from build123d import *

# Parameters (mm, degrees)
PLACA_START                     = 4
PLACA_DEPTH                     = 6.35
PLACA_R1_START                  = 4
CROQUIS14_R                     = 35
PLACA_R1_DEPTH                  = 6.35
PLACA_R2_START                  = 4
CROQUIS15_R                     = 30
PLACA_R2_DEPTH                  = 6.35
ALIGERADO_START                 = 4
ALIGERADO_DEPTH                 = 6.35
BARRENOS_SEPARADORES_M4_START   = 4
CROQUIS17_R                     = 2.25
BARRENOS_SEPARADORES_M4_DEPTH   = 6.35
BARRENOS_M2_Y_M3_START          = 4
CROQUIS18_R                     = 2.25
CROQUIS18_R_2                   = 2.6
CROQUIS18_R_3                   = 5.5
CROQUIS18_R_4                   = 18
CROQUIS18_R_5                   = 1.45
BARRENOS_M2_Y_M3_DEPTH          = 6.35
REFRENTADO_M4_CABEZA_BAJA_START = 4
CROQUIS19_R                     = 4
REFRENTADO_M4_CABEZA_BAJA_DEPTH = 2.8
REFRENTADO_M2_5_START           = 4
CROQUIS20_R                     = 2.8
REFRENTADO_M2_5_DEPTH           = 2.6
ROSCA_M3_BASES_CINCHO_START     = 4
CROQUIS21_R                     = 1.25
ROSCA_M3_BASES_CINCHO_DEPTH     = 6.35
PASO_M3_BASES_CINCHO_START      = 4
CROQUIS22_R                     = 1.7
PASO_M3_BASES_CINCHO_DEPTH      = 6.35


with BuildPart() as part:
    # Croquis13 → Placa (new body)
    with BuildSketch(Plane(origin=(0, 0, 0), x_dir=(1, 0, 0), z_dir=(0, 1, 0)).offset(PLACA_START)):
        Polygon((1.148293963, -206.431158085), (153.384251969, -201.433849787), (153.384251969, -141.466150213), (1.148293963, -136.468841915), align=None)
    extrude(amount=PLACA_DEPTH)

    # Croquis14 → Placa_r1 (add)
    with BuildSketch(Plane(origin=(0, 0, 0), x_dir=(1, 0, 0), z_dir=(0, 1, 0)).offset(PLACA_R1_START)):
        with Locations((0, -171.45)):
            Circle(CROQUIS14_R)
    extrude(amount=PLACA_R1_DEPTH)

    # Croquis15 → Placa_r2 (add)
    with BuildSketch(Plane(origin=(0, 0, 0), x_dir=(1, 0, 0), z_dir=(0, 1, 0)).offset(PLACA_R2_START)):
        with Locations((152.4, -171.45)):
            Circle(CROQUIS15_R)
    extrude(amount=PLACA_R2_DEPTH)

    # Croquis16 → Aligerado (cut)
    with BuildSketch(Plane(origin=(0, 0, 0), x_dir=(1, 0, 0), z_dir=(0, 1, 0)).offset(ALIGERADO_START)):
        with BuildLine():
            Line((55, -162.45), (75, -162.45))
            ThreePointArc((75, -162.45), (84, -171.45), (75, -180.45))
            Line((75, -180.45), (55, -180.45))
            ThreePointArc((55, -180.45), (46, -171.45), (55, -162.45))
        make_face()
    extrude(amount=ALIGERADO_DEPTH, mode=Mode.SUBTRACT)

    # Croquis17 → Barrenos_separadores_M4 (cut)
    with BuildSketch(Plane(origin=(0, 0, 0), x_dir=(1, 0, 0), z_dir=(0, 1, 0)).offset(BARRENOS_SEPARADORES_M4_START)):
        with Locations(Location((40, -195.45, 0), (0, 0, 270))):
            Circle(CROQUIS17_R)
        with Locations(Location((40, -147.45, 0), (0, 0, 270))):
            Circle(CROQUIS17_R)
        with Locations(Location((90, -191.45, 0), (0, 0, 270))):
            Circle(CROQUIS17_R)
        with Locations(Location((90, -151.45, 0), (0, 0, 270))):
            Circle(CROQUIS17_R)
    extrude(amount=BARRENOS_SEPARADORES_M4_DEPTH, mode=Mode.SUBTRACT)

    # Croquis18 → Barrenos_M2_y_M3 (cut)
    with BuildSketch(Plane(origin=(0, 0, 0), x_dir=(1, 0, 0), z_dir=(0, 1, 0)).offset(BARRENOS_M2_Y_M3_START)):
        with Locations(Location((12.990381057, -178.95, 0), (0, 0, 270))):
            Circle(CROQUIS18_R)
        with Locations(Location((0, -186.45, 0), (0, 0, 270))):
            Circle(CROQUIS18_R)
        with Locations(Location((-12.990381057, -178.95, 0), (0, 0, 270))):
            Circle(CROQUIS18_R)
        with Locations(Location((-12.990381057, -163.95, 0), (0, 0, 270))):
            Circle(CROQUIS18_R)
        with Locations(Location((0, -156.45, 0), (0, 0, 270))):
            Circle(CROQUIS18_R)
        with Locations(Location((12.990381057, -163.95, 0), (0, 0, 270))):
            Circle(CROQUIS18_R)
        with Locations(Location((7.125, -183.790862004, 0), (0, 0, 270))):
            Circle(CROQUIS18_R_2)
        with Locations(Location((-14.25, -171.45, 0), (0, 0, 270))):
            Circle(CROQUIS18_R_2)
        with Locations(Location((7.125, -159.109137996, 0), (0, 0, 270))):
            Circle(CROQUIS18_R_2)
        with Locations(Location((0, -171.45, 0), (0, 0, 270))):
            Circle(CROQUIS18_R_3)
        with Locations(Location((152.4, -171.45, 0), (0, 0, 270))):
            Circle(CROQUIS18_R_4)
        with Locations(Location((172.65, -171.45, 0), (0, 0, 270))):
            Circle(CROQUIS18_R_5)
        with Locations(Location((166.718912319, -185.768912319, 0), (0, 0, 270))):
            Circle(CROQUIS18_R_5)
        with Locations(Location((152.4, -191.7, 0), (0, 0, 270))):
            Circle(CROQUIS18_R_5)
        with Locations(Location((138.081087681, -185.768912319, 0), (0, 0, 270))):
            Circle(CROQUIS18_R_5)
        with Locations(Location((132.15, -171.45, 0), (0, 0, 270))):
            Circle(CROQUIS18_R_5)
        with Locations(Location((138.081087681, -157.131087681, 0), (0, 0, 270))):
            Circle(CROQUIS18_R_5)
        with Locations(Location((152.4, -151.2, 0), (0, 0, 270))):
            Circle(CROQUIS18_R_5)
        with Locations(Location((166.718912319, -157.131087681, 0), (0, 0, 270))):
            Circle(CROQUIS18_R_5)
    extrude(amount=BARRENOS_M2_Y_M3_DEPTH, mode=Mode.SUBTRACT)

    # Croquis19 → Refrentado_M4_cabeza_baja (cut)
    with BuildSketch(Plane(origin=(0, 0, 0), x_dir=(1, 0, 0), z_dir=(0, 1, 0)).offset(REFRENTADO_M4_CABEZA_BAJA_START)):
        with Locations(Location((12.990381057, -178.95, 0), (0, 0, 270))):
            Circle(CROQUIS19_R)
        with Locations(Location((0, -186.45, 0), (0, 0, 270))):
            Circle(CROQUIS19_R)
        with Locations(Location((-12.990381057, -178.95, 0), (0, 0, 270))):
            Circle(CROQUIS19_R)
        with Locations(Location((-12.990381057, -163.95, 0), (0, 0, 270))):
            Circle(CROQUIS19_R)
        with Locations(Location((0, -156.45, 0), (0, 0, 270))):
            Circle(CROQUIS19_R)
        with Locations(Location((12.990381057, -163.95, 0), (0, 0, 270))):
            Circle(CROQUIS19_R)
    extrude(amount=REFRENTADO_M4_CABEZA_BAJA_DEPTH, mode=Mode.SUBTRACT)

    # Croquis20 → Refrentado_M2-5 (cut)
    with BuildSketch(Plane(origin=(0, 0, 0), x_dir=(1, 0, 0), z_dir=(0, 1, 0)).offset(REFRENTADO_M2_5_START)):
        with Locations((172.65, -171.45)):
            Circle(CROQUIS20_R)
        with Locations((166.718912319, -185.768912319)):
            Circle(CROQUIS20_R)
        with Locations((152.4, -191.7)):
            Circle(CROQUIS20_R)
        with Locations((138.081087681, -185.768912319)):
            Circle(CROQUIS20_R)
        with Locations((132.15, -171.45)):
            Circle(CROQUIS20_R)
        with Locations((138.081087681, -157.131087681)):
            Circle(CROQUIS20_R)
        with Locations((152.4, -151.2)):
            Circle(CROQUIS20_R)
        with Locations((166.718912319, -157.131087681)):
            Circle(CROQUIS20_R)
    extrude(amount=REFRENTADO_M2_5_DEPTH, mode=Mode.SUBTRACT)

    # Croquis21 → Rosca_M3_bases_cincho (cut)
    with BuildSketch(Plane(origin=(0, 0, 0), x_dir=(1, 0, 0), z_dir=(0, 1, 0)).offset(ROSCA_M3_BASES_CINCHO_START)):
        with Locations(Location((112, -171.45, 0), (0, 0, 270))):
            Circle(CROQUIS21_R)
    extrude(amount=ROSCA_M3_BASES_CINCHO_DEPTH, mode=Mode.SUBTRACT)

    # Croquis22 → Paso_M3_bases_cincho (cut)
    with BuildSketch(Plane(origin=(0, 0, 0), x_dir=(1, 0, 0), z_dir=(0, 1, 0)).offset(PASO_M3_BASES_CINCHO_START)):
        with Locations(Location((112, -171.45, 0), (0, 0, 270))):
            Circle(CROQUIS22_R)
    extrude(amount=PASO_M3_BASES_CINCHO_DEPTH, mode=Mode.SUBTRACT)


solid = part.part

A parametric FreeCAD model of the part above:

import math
import FreeCAD as App
import Part
import Sketcher
from FreeCAD import Vector

doc = App.newDocument("Part")
body = doc.addObject("PartDesign::Body", "Body")

sketch1 = body.newObject("Sketcher::SketchObject", "Sketch")
sketch1.AttachmentSupport = (doc.getObject("XZ_Plane"), [""])
sketch1.MapMode = "FlatFace"
sketch1.AttachmentOffset = App.Placement(Vector(0, 0, -4), App.Rotation())
sketch1.addGeometry([
    Part.LineSegment(Vector(1.148294, 206.431158, 0), Vector(153.384252, 201.43385, 0)),
    Part.LineSegment(Vector(153.384252, 201.43385, 0), Vector(153.384252, 141.46615, 0)),
    Part.LineSegment(Vector(153.384252, 141.46615, 0), Vector(1.148294, 136.468842, 0)),
    Part.LineSegment(Vector(1.148294, 136.468842, 0), Vector(1.148294, 206.431158, 0)),
], False)
sketch1.addConstraint([
    Sketcher.Constraint("Coincident", 0, 2, 1, 1),
    Sketcher.Constraint("Coincident", 1, 2, 2, 1),
    Sketcher.Constraint("Coincident", 2, 2, 3, 1),
    Sketcher.Constraint("Coincident", 3, 2, 0, 1),
    Sketcher.Constraint("Vertical", 1),
    Sketcher.Constraint("Vertical", 3),
    Sketcher.Constraint("Equal", 0, 2),
    Sketcher.Constraint("DistanceY", 1, 2, 1, 1, 59.9677),
    Sketcher.Constraint("DistanceY", 3, 1, 3, 2, 69.962316),
    Sketcher.Constraint("DistanceX", -1, 1, 0, 2, 153.384252),
    Sketcher.Constraint("DistanceY", -1, 1, 0, 2, 201.43385),
    Sketcher.Constraint("DistanceX", 2, 2, 1, 2, 152.235958),
])
pad1 = body.newObject("PartDesign::Pad", "Pad")
pad1.Profile = sketch1
pad1.Length = 6.35
pad1.Reversed = True

sketch2 = body.newObject("Sketcher::SketchObject", "Sketch001")
sketch2.AttachmentSupport = (doc.getObject("XZ_Plane"), [""])
sketch2.MapMode = "FlatFace"
sketch2.AttachmentOffset = App.Placement(Vector(0, 0, -4), App.Rotation())
sketch2.addGeometry(Part.Circle(Vector(0, 171.45, 0), Vector(0, 0, 1), 35), False)
sketch2.addConstraint([
    Sketcher.Constraint("PointOnObject", 0, 3, -2),
    Sketcher.Constraint("Diameter", 0, 70.0),
    Sketcher.Constraint("DistanceY", -1, 1, 0, 3, 171.45),
])
pad2 = body.newObject("PartDesign::Pad", "Pad001")
pad2.Profile = sketch2
pad2.Length = 6.35
pad2.Reversed = True

sketch3 = body.newObject("Sketcher::SketchObject", "Sketch002")
sketch3.AttachmentSupport = (doc.getObject("XZ_Plane"), [""])
sketch3.MapMode = "FlatFace"
sketch3.AttachmentOffset = App.Placement(Vector(0, 0, -4), App.Rotation())
sketch3.addGeometry(Part.Circle(Vector(152.4, 171.45, 0), Vector(0, 0, 1), 30), False)
sketch3.addConstraint([
    Sketcher.Constraint("Diameter", 0, 60.0),
    Sketcher.Constraint("DistanceX", -1, 1, 0, 3, 152.4),
    Sketcher.Constraint("DistanceY", -1, 1, 0, 3, 171.45),
])
pad3 = body.newObject("PartDesign::Pad", "Pad002")
pad3.Profile = sketch3
pad3.Length = 6.35
pad3.Reversed = True

sketch4 = body.newObject("Sketcher::SketchObject", "Sketch003")
sketch4.AttachmentSupport = (doc.getObject("XZ_Plane"), [""])
sketch4.MapMode = "FlatFace"
sketch4.AttachmentOffset = App.Placement(Vector(0, 0, -4), App.Rotation())
sketch4.addGeometry([
    Part.LineSegment(Vector(75, 162.45, 0), Vector(55, 162.45, 0)),
    Part.ArcOfCircle(Part.Circle(Vector(55, 171.45, 0), Vector(0, 0, 1), 9), math.radians(90), math.radians(270)),
    Part.LineSegment(Vector(55, 180.45, 0), Vector(75, 180.45, 0)),
    Part.ArcOfCircle(Part.Circle(Vector(75, 171.45, 0), Vector(0, 0, 1), 9), math.radians(-90), math.radians(90)),
], False)
sketch4.addConstraint([
    Sketcher.Constraint("Tangent", 0, 2, 1, 2),
    Sketcher.Constraint("Tangent", 1, 1, 2, 1),
    Sketcher.Constraint("Tangent", 2, 2, 3, 2),
    Sketcher.Constraint("Tangent", 3, 1, 0, 1),
    Sketcher.Constraint("Horizontal", 0),
    Sketcher.Constraint("Horizontal", 2),
    Sketcher.Constraint("Radius", 1, 9.0),
    Sketcher.Constraint("DistanceX", 0, 2, 0, 1, 20.0),
    Sketcher.Constraint("DistanceX", -1, 1, 1, 3, 55.0),
    Sketcher.Constraint("DistanceY", -1, 1, 1, 3, 171.45),
])
pocket1 = body.newObject("PartDesign::Pocket", "Pocket")
pocket1.Profile = sketch4
pocket1.Length = 6.35

sketch5 = body.newObject("Sketcher::SketchObject", "Sketch004")
sketch5.AttachmentSupport = (doc.getObject("XZ_Plane"), [""])
sketch5.MapMode = "FlatFace"
sketch5.AttachmentOffset = App.Placement(Vector(0, 0, -4), App.Rotation())
sketch5.addGeometry([
    Part.Circle(Vector(40, 195.45, 0), Vector(0, 0, 1), 2.25),
    Part.Circle(Vector(40, 147.45, 0), Vector(0, 0, 1), 2.25),
    Part.Circle(Vector(90, 191.45, 0), Vector(0, 0, 1), 2.25),
    Part.Circle(Vector(90, 151.45, 0), Vector(0, 0, 1), 2.25),
], False)
sketch5.addConstraint([
    Sketcher.Constraint("Equal", 0, 1),
    Sketcher.Constraint("Equal", 1, 2),
    Sketcher.Constraint("Equal", 2, 3),
    Sketcher.Constraint("Vertical", 0, 3, 1, 3),
    Sketcher.Constraint("Vertical", 2, 3, 3, 3),
    Sketcher.Constraint("Diameter", 0, 4.5),
    Sketcher.Constraint("DistanceX", -1, 1, 0, 3, 40.0),
    Sketcher.Constraint("DistanceX", -1, 1, 2, 3, 90.0),
    Sketcher.Constraint("DistanceY", 1, 3, 0, 3, 48.0),
    Sketcher.Constraint("DistanceY", 2, 3, 0, 3, 4.0),
    Sketcher.Constraint("DistanceY", 3, 3, 2, 3, 40.0),
    Sketcher.Constraint("DistanceY", -1, 1, 0, 3, 195.45),
])
pocket2 = body.newObject("PartDesign::Pocket", "Pocket001")
pocket2.Profile = sketch5
pocket2.Length = 6.35

sketch6 = body.newObject("Sketcher::SketchObject", "Sketch005")
sketch6.AttachmentSupport = (doc.getObject("XZ_Plane"), [""])
sketch6.MapMode = "FlatFace"
sketch6.AttachmentOffset = App.Placement(Vector(0, 0, -4), App.Rotation())
sketch6.addGeometry([
    Part.Circle(Vector(12.990381, 178.95, 0), Vector(0, 0, 1), 2.25),
    Part.Circle(Vector(0, 186.45, 0), Vector(0, 0, 1), 2.25),
    Part.Circle(Vector(-12.990381, 178.95, 0), Vector(0, 0, 1), 2.25),
    Part.Circle(Vector(-12.990381, 163.95, 0), Vector(0, 0, 1), 2.25),
    Part.Circle(Vector(0, 156.45, 0), Vector(0, 0, 1), 2.25),
    Part.Circle(Vector(12.990381, 163.95, 0), Vector(0, 0, 1), 2.25),
    Part.Circle(Vector(7.125, 183.790862, 0), Vector(0, 0, 1), 2.6),
    Part.Circle(Vector(-14.25, 171.45, 0), Vector(0, 0, 1), 2.6),
    Part.Circle(Vector(7.125, 159.109138, 0), Vector(0, 0, 1), 2.6),
    Part.Circle(Vector(0, 171.45, 0), Vector(0, 0, 1), 5.5),
    Part.Circle(Vector(152.4, 171.45, 0), Vector(0, 0, 1), 18),
    Part.Circle(Vector(172.65, 171.45, 0), Vector(0, 0, 1), 1.45),
    Part.Circle(Vector(166.718912, 185.768912, 0), Vector(0, 0, 1), 1.45),
    Part.Circle(Vector(152.4, 191.7, 0), Vector(0, 0, 1), 1.45),
    Part.Circle(Vector(138.081088, 185.768912, 0), Vector(0, 0, 1), 1.45),
    Part.Circle(Vector(132.15, 171.45, 0), Vector(0, 0, 1), 1.45),
    Part.Circle(Vector(138.081088, 157.131088, 0), Vector(0, 0, 1), 1.45),
    Part.Circle(Vector(152.4, 151.2, 0), Vector(0, 0, 1), 1.45),
    Part.Circle(Vector(166.718912, 157.131088, 0), Vector(0, 0, 1), 1.45),
], False)
sketch6.addConstraint([
    Sketcher.Constraint("Equal", 0, 1),
    Sketcher.Constraint("Equal", 1, 2),
    Sketcher.Constraint("Equal", 2, 3),
    Sketcher.Constraint("Equal", 3, 4),
    Sketcher.Constraint("Equal", 4, 5),
    Sketcher.Constraint("Equal", 6, 7),
    Sketcher.Constraint("Equal", 7, 8),
    Sketcher.Constraint("Equal", 11, 12),
    Sketcher.Constraint("Equal", 12, 13),
    Sketcher.Constraint("Equal", 13, 14),
    Sketcher.Constraint("Equal", 14, 15),
    Sketcher.Constraint("Equal", 15, 16),
    Sketcher.Constraint("Equal", 16, 17),
    Sketcher.Constraint("Equal", 17, 18),
    Sketcher.Constraint("Symmetric", 0, 3, 2, 3, -2),
    Sketcher.Constraint("Symmetric", 3, 3, 5, 3, -2),
    Sketcher.Constraint("PointOnObject", 1, 3, -2),
    Sketcher.Constraint("PointOnObject", 4, 3, -2),
    Sketcher.Constraint("PointOnObject", 9, 3, -2),
    Sketcher.Constraint("Horizontal", 7, 3, 9, 3),
    Sketcher.Constraint("Horizontal", 9, 3, 10, 3),
    Sketcher.Constraint("Horizontal", 10, 3, 11, 3),
    Sketcher.Constraint("Horizontal", 12, 3, 14, 3),
    Sketcher.Constraint("Horizontal", 11, 3, 15, 3),
    Sketcher.Constraint("Horizontal", 16, 3, 18, 3),
    Sketcher.Constraint("Vertical", 2, 3, 3, 3),
    Sketcher.Constraint("Vertical", 6, 3, 8, 3),
    Sketcher.Constraint("Vertical", 10, 3, 13, 3),
    Sketcher.Constraint("Vertical", 14, 3, 16, 3),
    Sketcher.Constraint("Vertical", 13, 3, 17, 3),
    Sketcher.Constraint("Vertical", 12, 3, 18, 3),
    Sketcher.Constraint("Diameter", 9, 11.0),
    Sketcher.Constraint("Diameter", 10, 36.0),
    Sketcher.Constraint("Diameter", 0, 4.5),
    Sketcher.Constraint("Diameter", 6, 5.2),
    Sketcher.Constraint("Diameter", 11, 2.9),
    Sketcher.Constraint("DistanceY", 3, 3, 2, 3, 15.0),
    Sketcher.Constraint("DistanceY", 4, 3, 1, 3, 30.0),
    Sketcher.Constraint("DistanceY", 7, 3, 1, 3, 15.0),
    Sketcher.Constraint("DistanceX", -1, 1, 10, 3, 152.4),
    Sketcher.Constraint("DistanceY", -1, 1, 13, 3, 191.7),
    Sketcher.Constraint("DistanceY", -1, 1, 17, 3, 151.2),
    Sketcher.Constraint("DistanceY", 0, 3, 1, 3, 7.5),
    Sketcher.Constraint("DistanceX", 15, 3, 11, 3, 40.5),
    Sketcher.Constraint("DistanceY", -1, 1, 0, 3, 178.95),
    Sketcher.Constraint("DistanceX", 7, 3, -1, 1, 14.25),
    Sketcher.Constraint("DistanceX", -1, 1, 11, 3, 172.65),
    Sketcher.Constraint("DistanceX", -1, 1, 6, 3, 7.125),
    Sketcher.Constraint("DistanceX", -1, 1, 0, 3, 12.990381),
    Sketcher.Constraint("DistanceX", 0, 3, 12, 3, 153.728531),
    Sketcher.Constraint("DistanceY", 6, 3, 12, 3, 1.97805),
    Sketcher.Constraint("DistanceY", -1, 1, 6, 3, 183.790862),
    Sketcher.Constraint("DistanceY", -1, 1, 8, 3, 159.109138),
    Sketcher.Constraint("DistanceX", -1, 1, 14, 3, 138.081088),
    Sketcher.Constraint("DistanceY", -1, 1, 16, 3, 157.131088),
])
pocket3 = body.newObject("PartDesign::Pocket", "Pocket002")
pocket3.Profile = sketch6
pocket3.Length = 6.35

sketch7 = body.newObject("Sketcher::SketchObject", "Sketch006")
sketch7.AttachmentSupport = (doc.getObject("XZ_Plane"), [""])
sketch7.MapMode = "FlatFace"
sketch7.AttachmentOffset = App.Placement(Vector(0, 0, -4), App.Rotation())
sketch7.addGeometry([
    Part.Circle(Vector(12.990381, 178.95, 0), Vector(0, 0, 1), 4),
    Part.Circle(Vector(0, 186.45, 0), Vector(0, 0, 1), 4),
    Part.Circle(Vector(-12.990381, 178.95, 0), Vector(0, 0, 1), 4),
    Part.Circle(Vector(-12.990381, 163.95, 0), Vector(0, 0, 1), 4),
    Part.Circle(Vector(0, 156.45, 0), Vector(0, 0, 1), 4),
    Part.Circle(Vector(12.990381, 163.95, 0), Vector(0, 0, 1), 4),
], False)
sketch7.addConstraint([
    Sketcher.Constraint("Equal", 0, 1),
    Sketcher.Constraint("Equal", 1, 2),
    Sketcher.Constraint("Equal", 2, 3),
    Sketcher.Constraint("Equal", 3, 4),
    Sketcher.Constraint("Equal", 4, 5),
    Sketcher.Constraint("Symmetric", 0, 3, 2, 3, -2),
    Sketcher.Constraint("Symmetric", 3, 3, 5, 3, -2),
    Sketcher.Constraint("PointOnObject", 1, 3, -2),
    Sketcher.Constraint("PointOnObject", 4, 3, -2),
    Sketcher.Constraint("Vertical", 2, 3, 3, 3),
    Sketcher.Constraint("Diameter", 0, 8.0),
    Sketcher.Constraint("DistanceY", 3, 3, 2, 3, 15.0),
    Sketcher.Constraint("DistanceY", 4, 3, 1, 3, 30.0),
    Sketcher.Constraint("DistanceY", 0, 3, 1, 3, 7.5),
    Sketcher.Constraint("DistanceY", -1, 1, 0, 3, 178.95),
    Sketcher.Constraint("DistanceX", -1, 1, 0, 3, 12.990381),
])
pocket4 = body.newObject("PartDesign::Pocket", "Pocket003")
pocket4.Profile = sketch7
pocket4.Length = 2.8

sketch8 = body.newObject("Sketcher::SketchObject", "Sketch007")
sketch8.AttachmentSupport = (doc.getObject("XZ_Plane"), [""])
sketch8.MapMode = "FlatFace"
sketch8.AttachmentOffset = App.Placement(Vector(0, 0, -4), App.Rotation())
sketch8.addGeometry([
    Part.Circle(Vector(172.65, 171.45, 0), Vector(0, 0, 1), 2.8),
    Part.Circle(Vector(166.718912, 185.768912, 0), Vector(0, 0, 1), 2.8),
    Part.Circle(Vector(152.4, 191.7, 0), Vector(0, 0, 1), 2.8),
    Part.Circle(Vector(138.081088, 185.768912, 0), Vector(0, 0, 1), 2.8),
    Part.Circle(Vector(132.15, 171.45, 0), Vector(0, 0, 1), 2.8),
    Part.Circle(Vector(138.081088, 157.131088, 0), Vector(0, 0, 1), 2.8),
    Part.Circle(Vector(152.4, 151.2, 0), Vector(0, 0, 1), 2.8),
    Part.Circle(Vector(166.718912, 157.131088, 0), Vector(0, 0, 1), 2.8),
], False)
sketch8.addConstraint([
    Sketcher.Constraint("Equal", 0, 1),
    Sketcher.Constraint("Equal", 1, 2),
    Sketcher.Constraint("Equal", 2, 3),
    Sketcher.Constraint("Equal", 3, 4),
    Sketcher.Constraint("Equal", 4, 5),
    Sketcher.Constraint("Equal", 5, 6),
    Sketcher.Constraint("Equal", 6, 7),
    Sketcher.Constraint("Horizontal", 1, 3, 3, 3),
    Sketcher.Constraint("Horizontal", 0, 3, 4, 3),
    Sketcher.Constraint("Horizontal", 5, 3, 7, 3),
    Sketcher.Constraint("Vertical", 3, 3, 5, 3),
    Sketcher.Constraint("Vertical", 2, 3, 6, 3),
    Sketcher.Constraint("Vertical", 1, 3, 7, 3),
    Sketcher.Constraint("Diameter", 0, 5.6),
    Sketcher.Constraint("DistanceX", -1, 1, 2, 3, 152.4),
    Sketcher.Constraint("DistanceY", -1, 1, 2, 3, 191.7),
    Sketcher.Constraint("DistanceY", -1, 1, 6, 3, 151.2),
    Sketcher.Constraint("DistanceX", 4, 3, 0, 3, 40.5),
    Sketcher.Constraint("DistanceX", -1, 1, 0, 3, 172.65),
    Sketcher.Constraint("DistanceY", -1, 1, 0, 3, 171.45),
    Sketcher.Constraint("DistanceX", -1, 1, 1, 3, 166.718912),
    Sketcher.Constraint("DistanceY", -1, 1, 1, 3, 185.768912),
    Sketcher.Constraint("DistanceX", -1, 1, 3, 3, 138.081088),
    Sketcher.Constraint("DistanceY", -1, 1, 5, 3, 157.131088),
])
pocket5 = body.newObject("PartDesign::Pocket", "Pocket004")
pocket5.Profile = sketch8
pocket5.Length = 2.6

sketch9 = body.newObject("Sketcher::SketchObject", "Sketch008")
sketch9.AttachmentSupport = (doc.getObject("XZ_Plane"), [""])
sketch9.MapMode = "FlatFace"
sketch9.AttachmentOffset = App.Placement(Vector(0, 0, -4), App.Rotation())
sketch9.addGeometry(Part.Circle(Vector(112, 171.45, 0), Vector(0, 0, 1), 1.25), False)
sketch9.addConstraint([
    Sketcher.Constraint("Diameter", 0, 2.5),
    Sketcher.Constraint("DistanceX", -1, 1, 0, 3, 112.0),
    Sketcher.Constraint("DistanceY", -1, 1, 0, 3, 171.45),
])
pocket6 = body.newObject("PartDesign::Pocket", "Pocket005")
pocket6.Profile = sketch9
pocket6.Length = 6.35

sketch10 = body.newObject("Sketcher::SketchObject", "Sketch009")
sketch10.AttachmentSupport = (doc.getObject("XZ_Plane"), [""])
sketch10.MapMode = "FlatFace"
sketch10.AttachmentOffset = App.Placement(Vector(0, 0, -4), App.Rotation())
sketch10.addGeometry(Part.Circle(Vector(112, 171.45, 0), Vector(0, 0, 1), 1.7), False)
sketch10.addConstraint([
    Sketcher.Constraint("Diameter", 0, 3.4),
    Sketcher.Constraint("DistanceX", -1, 1, 0, 3, 112.0),
    Sketcher.Constraint("DistanceY", -1, 1, 0, 3, 171.45),
])
pocket7 = body.newObject("PartDesign::Pocket", "Pocket006")
pocket7.Profile = sketch10
pocket7.Length = 6.35

doc.recompute()
